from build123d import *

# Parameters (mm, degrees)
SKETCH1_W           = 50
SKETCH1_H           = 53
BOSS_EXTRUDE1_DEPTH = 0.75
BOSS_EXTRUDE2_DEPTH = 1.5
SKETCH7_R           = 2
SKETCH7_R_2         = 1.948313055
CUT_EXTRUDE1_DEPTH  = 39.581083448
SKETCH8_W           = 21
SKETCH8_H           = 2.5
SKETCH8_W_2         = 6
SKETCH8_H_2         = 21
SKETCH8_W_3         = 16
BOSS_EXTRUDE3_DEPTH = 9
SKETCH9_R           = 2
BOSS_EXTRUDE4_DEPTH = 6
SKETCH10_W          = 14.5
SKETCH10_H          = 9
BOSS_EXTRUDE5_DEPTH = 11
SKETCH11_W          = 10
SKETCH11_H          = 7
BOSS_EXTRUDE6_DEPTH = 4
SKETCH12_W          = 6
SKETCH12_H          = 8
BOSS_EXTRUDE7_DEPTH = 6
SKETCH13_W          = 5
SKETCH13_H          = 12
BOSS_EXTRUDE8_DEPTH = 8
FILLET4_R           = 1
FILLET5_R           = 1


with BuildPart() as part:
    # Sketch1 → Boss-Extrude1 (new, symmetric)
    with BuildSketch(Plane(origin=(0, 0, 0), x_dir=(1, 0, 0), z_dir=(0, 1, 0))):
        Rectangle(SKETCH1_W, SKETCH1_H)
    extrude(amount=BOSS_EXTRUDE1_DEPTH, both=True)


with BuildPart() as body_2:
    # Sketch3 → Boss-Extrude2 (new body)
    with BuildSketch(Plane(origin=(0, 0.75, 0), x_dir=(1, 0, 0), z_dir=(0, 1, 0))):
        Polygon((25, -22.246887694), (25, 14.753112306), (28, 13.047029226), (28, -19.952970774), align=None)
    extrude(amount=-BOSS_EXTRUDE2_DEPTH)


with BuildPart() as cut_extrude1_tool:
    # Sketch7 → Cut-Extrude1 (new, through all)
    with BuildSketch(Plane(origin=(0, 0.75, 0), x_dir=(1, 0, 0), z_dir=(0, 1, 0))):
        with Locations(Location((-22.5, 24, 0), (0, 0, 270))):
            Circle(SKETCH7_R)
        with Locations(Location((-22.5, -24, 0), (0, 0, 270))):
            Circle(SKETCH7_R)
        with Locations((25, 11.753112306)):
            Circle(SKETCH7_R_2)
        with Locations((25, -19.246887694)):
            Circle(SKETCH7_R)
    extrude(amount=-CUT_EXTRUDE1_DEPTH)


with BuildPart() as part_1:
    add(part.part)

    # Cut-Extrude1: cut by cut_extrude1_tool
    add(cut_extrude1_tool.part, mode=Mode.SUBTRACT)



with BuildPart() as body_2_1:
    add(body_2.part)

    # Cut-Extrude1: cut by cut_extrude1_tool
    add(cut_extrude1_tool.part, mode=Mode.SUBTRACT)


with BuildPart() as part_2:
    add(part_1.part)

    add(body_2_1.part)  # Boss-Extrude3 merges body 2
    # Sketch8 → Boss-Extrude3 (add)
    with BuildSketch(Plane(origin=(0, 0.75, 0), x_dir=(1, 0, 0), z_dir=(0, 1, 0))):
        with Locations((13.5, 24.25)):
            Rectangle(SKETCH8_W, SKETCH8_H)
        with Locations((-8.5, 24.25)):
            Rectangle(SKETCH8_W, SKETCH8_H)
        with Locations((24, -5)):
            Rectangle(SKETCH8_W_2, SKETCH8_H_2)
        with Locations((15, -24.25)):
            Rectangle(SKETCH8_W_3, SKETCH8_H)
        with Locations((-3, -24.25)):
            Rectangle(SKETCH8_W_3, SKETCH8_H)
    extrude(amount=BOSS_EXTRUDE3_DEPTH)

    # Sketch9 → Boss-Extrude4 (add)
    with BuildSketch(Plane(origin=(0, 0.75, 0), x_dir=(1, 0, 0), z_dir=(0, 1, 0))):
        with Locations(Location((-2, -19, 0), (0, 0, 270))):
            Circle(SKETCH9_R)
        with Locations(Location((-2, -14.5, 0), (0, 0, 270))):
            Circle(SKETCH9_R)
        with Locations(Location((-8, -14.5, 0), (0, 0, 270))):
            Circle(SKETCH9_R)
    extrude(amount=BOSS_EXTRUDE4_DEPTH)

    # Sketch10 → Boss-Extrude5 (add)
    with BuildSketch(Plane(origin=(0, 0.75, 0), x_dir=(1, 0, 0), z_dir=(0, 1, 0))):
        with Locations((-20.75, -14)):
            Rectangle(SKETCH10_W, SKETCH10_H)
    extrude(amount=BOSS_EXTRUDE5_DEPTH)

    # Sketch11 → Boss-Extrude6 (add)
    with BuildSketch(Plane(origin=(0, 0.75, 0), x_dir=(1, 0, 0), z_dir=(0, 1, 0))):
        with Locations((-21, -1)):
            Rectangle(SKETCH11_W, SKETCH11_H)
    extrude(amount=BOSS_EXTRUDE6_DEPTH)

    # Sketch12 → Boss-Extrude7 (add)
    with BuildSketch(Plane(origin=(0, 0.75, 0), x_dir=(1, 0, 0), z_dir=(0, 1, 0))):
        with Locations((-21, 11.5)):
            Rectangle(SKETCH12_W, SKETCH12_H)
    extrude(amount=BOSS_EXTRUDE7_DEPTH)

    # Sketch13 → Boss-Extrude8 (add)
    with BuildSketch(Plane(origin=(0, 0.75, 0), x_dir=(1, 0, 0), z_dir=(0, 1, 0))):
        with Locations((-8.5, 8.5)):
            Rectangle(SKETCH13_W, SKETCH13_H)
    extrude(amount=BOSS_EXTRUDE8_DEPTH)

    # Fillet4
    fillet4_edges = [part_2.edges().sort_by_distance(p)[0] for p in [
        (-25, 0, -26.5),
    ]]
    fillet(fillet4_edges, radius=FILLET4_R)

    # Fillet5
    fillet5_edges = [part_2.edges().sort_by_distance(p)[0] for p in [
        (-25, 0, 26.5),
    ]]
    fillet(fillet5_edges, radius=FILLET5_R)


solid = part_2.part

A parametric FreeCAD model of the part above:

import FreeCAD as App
import Part
import Sketcher

V = App.Vector


def edges_at(feature, points):
    """Names of the edges that pass closest to the given points."""
    edges = feature.Shape.Edges
    near = lambda p: min(range(len(edges)), key=lambda i: edges[i].distToShape(Part.Vertex(*p))[0])
    return sorted({f"Edge{near(p) + 1}" for p in points})


def add_polygon(sketch, points):
    """Adds a closed chain of lines whose ends are joined by coincident constraints."""
    first, n = sketch.GeometryCount, len(points)
    for a, b in zip(points, points[1:] + points[:1]):
        sketch.addGeometry(Part.LineSegment(App.Vector(*a, 0), App.Vector(*b, 0)), False)
    for i in range(n):
        sketch.addConstraint(Sketcher.Constraint("Coincident", first + i, 2, first + (i + 1) % n, 1))

doc = App.newDocument("Part")
params = doc.addObject("Spreadsheet::Sheet", "Params")
for row, (alias, value) in enumerate([
    ("sketch1_width", "50 mm"),
    ("sketch1_height", "53 mm"),
    ("pad1_length", "1.5 mm"),
    ("sketch2_height", "37 mm"),
    ("sketch2_height2", "33 mm"),
    ("pad2_length", "1.5 mm"),
    ("sketch3_diameter", "4 mm"),
    ("pad3_length", "39.581083 mm"),
    ("sketch4_width", "21 mm"),
    ("sketch4_width2", "6 mm"),
    ("sketch4_width3", "16 mm"),
    ("sketch4_height", "2.5 mm"),
    ("pad4_length", "9 mm"),
    ("sketch5_diameter", "4 mm"),
    ("pad5_length", "6 mm"),
    ("sketch6_height", "9 mm"),
    ("sketch6_width", "14.5 mm"),
    ("pad6_length", "11 mm"),
    ("sketch7_width", "10 mm"),
    ("sketch7_height", "7 mm"),
    ("pad7_length", "4 mm"),
    ("sketch8_width", "6 mm"),
    ("sketch8_height", "8 mm"),
    ("pad8_length", "6 mm"),
    ("sketch9_width", "5 mm"),
    ("sketch9_height", "12 mm"),
    ("pad9_length", "8 mm"),
    ("fillet_radius", "1 mm"),
    ("fillet2_radius", "1 mm"),
], start=1):
    params.set(f"A{row}", alias)
    params.set(f"B{row}", "=" + value)
    params.setAlias(f"B{row}", alias)

body = doc.addObject("PartDesign::Body", "Body")

sketch1 = body.newObject("Sketcher::SketchObject", "Sketch")
sketch1.AttachmentSupport = (doc.getObject("XZ_Plane"), [""])
sketch1.MapMode = "FlatFace"
add_polygon(sketch1, [(-25, -26.5), (-25, 26.5), (25, 26.5), (25, -26.5)])
sketch1.addConstraint([
    Sketcher.Constraint("Vertical", 0),
    Sketcher.Constraint("Horizontal", 1),
    Sketcher.Constraint("Vertical", 2),
    Sketcher.Constraint("Horizontal", 3),
    Sketcher.Constraint("Symmetric", 0, 2, 2, 2, -1, 1),
    Sketcher.Constraint("DistanceX", 1, 1, 1, 2, 50.0),
    Sketcher.Constraint("DistanceY", 0, 1, 0, 2, 53.0),
])
sketch1.setExpression("Constraints[9]", "Params.sketch1_width")
sketch1.setExpression("Constraints[10]", "Params.sketch1_height")
pad1 = body.newObject("PartDesign::Pad", "Pad")
pad1.Profile = sketch1
pad1.setExpression("Length", "Params.pad1_length")
pad1.Midplane = True
body2 = doc.addObject("PartDesign::Body", "Body001")

sketch2 = body2.newObject("Sketcher::SketchObject", "Sketch001")
sketch2.AttachmentSupport = (doc.getObject("XZ_Plane001"), [""])
sketch2.MapMode = "FlatFace"
sketch2.AttachmentOffset = App.Placement(V(0, 0, -0.75), App.Rotation())
add_polygon(sketch2, [(25, -14.753112), (25, 22.246888), (28, 19.952971), (28, -13.047029)])
sketch2.addConstraint([
    Sketcher.Constraint("Vertical", 0),
    Sketcher.Constraint("Vertical", 2),
    Sketcher.Constraint("DistanceY", 0, 1, 0, 2, 37.0),
    Sketcher.Constraint("DistanceY", 2, 2, 2, 1, 33.0),
    Sketcher.Constraint("DistanceX", -1, 1, 0, 2, 25.0),
    Sketcher.Constraint("DistanceX", -1, 1, 1, 2, 28.0),
    Sketcher.Constraint("Distance", 3, 3.451191),
    Sketcher.Constraint("DistanceY", -1, 1, 1, 2, 19.952971),
])
sketch2.setExpression("Constraints[6]", "Params.sketch2_height")
sketch2.setExpression("Constraints[7]", "Params.sketch2_height2")
pad2 = body2.newObject("PartDesign::Pad", "Pad001")
pad2.Profile = sketch2
pad2.setExpression("Length", "Params.pad2_length")
body3 = doc.addObject("PartDesign::Body", "Body002")
body3.AllowCompound = True

sketch3 = body3.newObject("Sketcher::SketchObject", "Sketch002")
sketch3.AttachmentSupport = (doc.getObject("XZ_Plane002"), [""])
sketch3.MapMode = "FlatFace"
sketch3.AttachmentOffset = App.Placement(V(0, 0, -0.75), App.Rotation())
sketch3.addGeometry([
    Part.Circle(V(-22.5, -24, 0), V(0, 0, 1), 2),
    Part.Circle(V(-22.5, 24, 0), V(0, 0, 1), 2),
    Part.Circle(V(25, -11.753112, 0), V(0, 0, 1), 1.948313),
    Part.Circle(V(25, 19.246888, 0), V(0, 0, 1), 2),
], False)
sketch3.addConstraint([
    Sketcher.Constraint("Equal", 0, 1),
    Sketcher.Constraint("Equal", 1, 3),
    Sketcher.Constraint("Symmetric", 0, 3, 1, 3, -1),
    Sketcher.Constraint("Vertical", 2, 3, 3, 3),
    Sketcher.Constraint("Diameter", 0, 4.0),
    Sketcher.Constraint("DistanceY", 0, 3, -1, 1, 24.0),
    Sketcher.Constraint("DistanceX", -1, 1, 2, 3, 25.0),
    Sketcher.Constraint("DistanceY", 2, 3, 3, 3, 31.0),
    Sketcher.Constraint("DistanceX", 0, 3, -1, 1, 22.5),
    Sketcher.Constraint("Diameter", 2, 3.896626),
    Sketcher.Constraint("DistanceY", 2, 3, -1, 1, 11.753112),
])
sketch3.setExpression("Constraints[4]", "Params.sketch3_diameter")
pad3 = body3.newObject("PartDesign::Pad", "Pad002")
pad3.Profile = sketch3
pad3.setExpression("Length", "Params.pad3_length")
doc.recompute()

body4 = doc.addObject("PartDesign::Body", "Body003")
body4.BaseFeature = body3
boolean = body.newObject("PartDesign::Boolean", "Boolean")
boolean.Type = "Cut"
boolean.addObjects([body4])
doc.recompute()

boolean2 = body2.newObject("PartDesign::Boolean", "Boolean001")
boolean2.Type = "Cut"
boolean2.addObjects([body3])
doc.recompute()

boolean3 = body.newObject("PartDesign::Boolean", "Boolean002")
boolean3.Type = "Fuse"
boolean3.addObjects([body2])

sketch4 = body.newObject("Sketcher::SketchObject", "Sketch003")
sketch4.AttachmentSupport = (doc.getObject("XZ_Plane"), [""])
sketch4.MapMode = "FlatFace"
sketch4.AttachmentOffset = App.Placement(V(0, 0, -0.75), App.Rotation())
add_polygon(sketch4, [(3, -25.5), (3, -23), (24, -23), (24, -25.5)])
add_polygon(sketch4, [(-19, -25.5), (-19, -23), (2, -23), (2, -25.5)])
add_polygon(sketch4, [(21, -5.5), (21, 15.5), (27, 15.5), (27, -5.5)])
add_polygon(sketch4, [(7, 23), (7, 25.5), (23, 25.5), (23, 23)])
add_polygon(sketch4, [(-11, 23), (-11, 25.5), (5, 25.5), (5, 23)])
sketch4.addConstraint([
    Sketcher.Constraint("Vertical", 0),
    Sketcher.Constraint("Horizontal", 1),
    Sketcher.Constraint("Vertical", 2),
    Sketcher.Constraint("Horizontal", 3),
    Sketcher.Constraint("Vertical", 4),
    Sketcher.Constraint("Horizontal", 5),
    Sketcher.Constraint("Vertical", 6),
    Sketcher.Constraint("Horizontal", 7),
    Sketcher.Constraint("Vertical", 8),
    Sketcher.Constraint("Horizontal", 9),
    Sketcher.Constraint("Vertical", 10),
    Sketcher.Constraint("Horizontal", 11),
    Sketcher.Constraint("Vertical", 12),
    Sketcher.Constraint("Horizontal", 13),
    Sketcher.Constraint("Vertical", 14),
    Sketcher.Constraint("Horizontal", 15),
    Sketcher.Constraint("Vertical", 16),
    Sketcher.Constraint("Horizontal", 17),
    Sketcher.Constraint("Vertical", 18),
    Sketcher.Constraint("Horizontal", 19),
    Sketcher.Constraint("Horizontal", 1, 2, 4, 2),
    Sketcher.Constraint("Horizontal", 3, 2, 6, 2),
    Sketcher.Constraint("Horizontal", 13, 2, 16, 2),
    Sketcher.Constraint("Horizontal", 15, 2, 18, 2),
    Sketcher.Constraint("Equal", 3, 5),
    Sketcher.Constraint("Equal", 15, 17),
    Sketcher.Constraint("Equal", 7, 8),
    Sketcher.Constraint("Equal", 6, 12),
    Sketcher.Constraint("DistanceX", 1, 1, 1, 2, 21.0),
    Sketcher.Constraint("DistanceX", 9, 1, 9, 2, 6.0),
    Sketcher.Constraint("DistanceX", 13, 1, 13, 2, 16.0),
    Sketcher.Constraint("DistanceY", 0, 1, 0, 2, 2.5),
    Sketcher.Constraint("DistanceX", -1, 1, 0, 2, 3.0),
    Sketcher.Constraint("DistanceY", 0, 2, -1, 1, 23.0),
    Sketcher.Constraint("DistanceX", 4, 2, -1, 1, 19.0),
    Sketcher.Constraint("DistanceX", -1, 1, 8, 2, 21.0),
    Sketcher.Constraint("DistanceX", -1, 1, 12, 2, 7.0),
    Sketcher.Constraint("DistanceY", -1, 1, 14, 2, 23.0),
    Sketcher.Constraint("DistanceX", 16, 2, -1, 1, 11.0),
    Sketcher.Constraint("DistanceY", 2, 2, 8, 2, 41.0),
])
sketch4.setExpression("Constraints[48]", "Params.sketch4_width")
sketch4.setExpression("Constraints[49]", "Params.sketch4_width2")
sketch4.setExpression("Constraints[50]", "Params.sketch4_width3")
sketch4.setExpression("Constraints[51]", "Params.sketch4_height")
pad4 = body.newObject("PartDesign::Pad", "Pad003")
pad4.Profile = sketch4
pad4.setExpression("Length", "Params.pad4_length")
pad4.Reversed = True

sketch5 = body.newObject("Sketcher::SketchObject", "Sketch004")
sketch5.AttachmentSupport = (doc.getObject("XZ_Plane"), [""])
sketch5.MapMode = "FlatFace"
sketch5.AttachmentOffset = App.Placement(V(0, 0, -0.75), App.Rotation())
sketch5.addGeometry([
    Part.Circle(V(-2, 19, 0), V(0, 0, 1), 2),
    Part.Circle(V(-2, 14.5, 0), V(0, 0, 1), 2),
    Part.Circle(V(-8, 14.5, 0), V(0, 0, 1), 2),
], False)
sketch5.addConstraint([
    Sketcher.Constraint("Equal", 0, 1),
    Sketcher.Constraint("Equal", 1, 2),
    Sketcher.Constraint("Horizontal", 1, 3, 2, 3),
    Sketcher.Constraint("Vertical", 0, 3, 1, 3),
    Sketcher.Constraint("Diameter", 0, 4.0),
    Sketcher.Constraint("DistanceX", 0, 3, -1, 1, 2.0),
    Sketcher.Constraint("DistanceY", -1, 1, 0, 3, 19.0),
    Sketcher.Constraint("DistanceX", 2, 3, -1, 1, 8.0),
    Sketcher.Constraint("DistanceY", -1, 1, 1, 3, 14.5),
])
sketch5.setExpression("Constraints[4]", "Params.sketch5_diameter")
pad5 = body.newObject("PartDesign::Pad", "Pad004")
pad5.Profile = sketch5
pad5.setExpression("Length", "Params.pad5_length")
pad5.Reversed = True

sketch6 = body.newObject("Sketcher::SketchObject", "Sketch005")
sketch6.AttachmentSupport = (doc.getObject("XZ_Plane"), [""])
sketch6.MapMode = "FlatFace"
sketch6.AttachmentOffset = App.Placement(V(0, 0, -0.75), App.Rotation())
add_polygon(sketch6, [(-28, 9.5), (-28, 18.5), (-13.5, 18.5), (-13.5, 9.5)])
sketch6.addConstraint([
    Sketcher.Constraint("Vertical", 0),
    Sketcher.Constraint("Horizontal", 1),
    Sketcher.Constraint("Vertical", 2),
    Sketcher.Constraint("Horizontal", 3),
    Sketcher.Constraint("DistanceY", 0, 1, 0, 2, 9.0),
    Sketcher.Constraint("DistanceX", 1, 1, 1, 2, 14.5),
    Sketcher.Constraint("DistanceX", 0, 2, -1, 1, 28.0),
    Sketcher.Constraint("DistanceY", -1, 1, 0, 2, 18.5),
])
sketch6.setExpression("Constraints[8]", "Params.sketch6_height")
sketch6.setExpression("Constraints[9]", "Params.sketch6_width")
pad6 = body.newObject("PartDesign::Pad", "Pad005")
pad6.Profile = sketch6
pad6.setExpression("Length", "Params.pad6_length")
pad6.Reversed = True

sketch7 = body.newObject("Sketcher::SketchObject", "Sketch006")
sketch7.AttachmentSupport = (doc.getObject("XZ_Plane"), [""])
sketch7.MapMode = "FlatFace"
sketch7.AttachmentOffset = App.Placement(V(0, 0, -0.75), App.Rotation())
add_polygon(sketch7, [(-26, -2.5), (-26, 4.5), (-16, 4.5), (-16, -2.5)])
sketch7.addConstraint([
    Sketcher.Constraint("Vertical", 0),
    Sketcher.Constraint("Horizontal", 1),
    Sketcher.Constraint("Vertical", 2),
    Sketcher.Constraint("Horizontal", 3),
    Sketcher.Constraint("DistanceX", 1, 1, 1, 2, 10.0),
    Sketcher.Constraint("DistanceY", 0, 1, 0, 2, 7.0),
    Sketcher.Constraint("DistanceX", 0, 2, -1, 1, 26.0),
    Sketcher.Constraint("DistanceY", -1, 1, 0, 2, 4.5),
])
sketch7.setExpression("Constraints[8]", "Params.sketch7_width")
sketch7.setExpression("Constraints[9]", "Params.sketch7_height")
pad7 = body.newObject("PartDesign::Pad", "Pad006")
pad7.Profile = sketch7
pad7.setExpression("Length", "Params.pad7_length")
pad7.Reversed = True

sketch8 = body.newObject("Sketcher::SketchObject", "Sketch007")
sketch8.AttachmentSupport = (doc.getObject("XZ_Plane"), [""])
sketch8.MapMode = "FlatFace"
sketch8.AttachmentOffset = App.Placement(V(0, 0, -0.75), App.Rotation())
add_polygon(sketch8, [(-24, -15.5), (-24, -7.5), (-18, -7.5), (-18, -15.5)])
sketch8.addConstraint([
    Sketcher.Constraint("Vertical", 0),
    Sketcher.Constraint("Horizontal", 1),
    Sketcher.Constraint("Vertical", 2),
    Sketcher.Constraint("Horizontal", 3),
    Sketcher.Constraint("DistanceX", 1, 1, 1, 2, 6.0),
    Sketcher.Constraint("DistanceY", 0, 1, 0, 2, 8.0),
    Sketcher.Constraint("DistanceX", 0, 2, -1, 1, 24.0),
    Sketcher.Constraint("DistanceY", 0, 2, -1, 1, 7.5),
])
sketch8.setExpression("Constraints[8]", "Params.sketch8_width")
sketch8.setExpression("Constraints[9]", "Params.sketch8_height")
pad8 = body.newObject("PartDesign::Pad", "Pad007")
pad8.Profile = sketch8
pad8.setExpression("Length", "Params.pad8_length")
pad8.Reversed = True

sketch9 = body.newObject("Sketcher::SketchObject", "Sketch008")
sketch9.AttachmentSupport = (doc.getObject("XZ_Plane"), [""])
sketch9.MapMode = "FlatFace"
sketch9.AttachmentOffset = App.Placement(V(0, 0, -0.75), App.Rotation())
add_polygon(sketch9, [(-11, -14.5), (-11, -2.5), (-6, -2.5), (-6, -14.5)])
sketch9.addConstraint([
    Sketcher.Constraint("Vertical", 0),
    Sketcher.Constraint("Horizontal", 1),
    Sketcher.Constraint("Vertical", 2),
    Sketcher.Constraint("Horizontal", 3),
    Sketcher.Constraint("DistanceX", 1, 1, 1, 2, 5.0),
    Sketcher.Constraint("DistanceY", 0, 1, 0, 2, 12.0),
    Sketcher.Constraint("DistanceX", 0, 2, -1, 1, 11.0),
    Sketcher.Constraint("DistanceY", 0, 2, -1, 1, 2.5),
])
sketch9.setExpression("Constraints[8]", "Params.sketch9_width")
sketch9.setExpression("Constraints[9]", "Params.sketch9_height")
pad9 = body.newObject("PartDesign::Pad", "Pad008")
pad9.Profile = sketch9
pad9.setExpression("Length", "Params.pad9_length")
pad9.Reversed = True
doc.recompute()

fillet = body.newObject("PartDesign::Fillet", "Fillet")
fillet.Base = (pad9, edges_at(pad9, [(-25, 0, -26.5)]))
fillet.setExpression("Radius", "Params.fillet_radius")
doc.recompute()

fillet2 = body.newObject("PartDesign::Fillet", "Fillet001")
fillet2.Base = (fillet, edges_at(fillet, [(-25, 0, 26.5)]))
fillet2.setExpression("Radius", "Params.fillet2_radius")

doc.recompute()
